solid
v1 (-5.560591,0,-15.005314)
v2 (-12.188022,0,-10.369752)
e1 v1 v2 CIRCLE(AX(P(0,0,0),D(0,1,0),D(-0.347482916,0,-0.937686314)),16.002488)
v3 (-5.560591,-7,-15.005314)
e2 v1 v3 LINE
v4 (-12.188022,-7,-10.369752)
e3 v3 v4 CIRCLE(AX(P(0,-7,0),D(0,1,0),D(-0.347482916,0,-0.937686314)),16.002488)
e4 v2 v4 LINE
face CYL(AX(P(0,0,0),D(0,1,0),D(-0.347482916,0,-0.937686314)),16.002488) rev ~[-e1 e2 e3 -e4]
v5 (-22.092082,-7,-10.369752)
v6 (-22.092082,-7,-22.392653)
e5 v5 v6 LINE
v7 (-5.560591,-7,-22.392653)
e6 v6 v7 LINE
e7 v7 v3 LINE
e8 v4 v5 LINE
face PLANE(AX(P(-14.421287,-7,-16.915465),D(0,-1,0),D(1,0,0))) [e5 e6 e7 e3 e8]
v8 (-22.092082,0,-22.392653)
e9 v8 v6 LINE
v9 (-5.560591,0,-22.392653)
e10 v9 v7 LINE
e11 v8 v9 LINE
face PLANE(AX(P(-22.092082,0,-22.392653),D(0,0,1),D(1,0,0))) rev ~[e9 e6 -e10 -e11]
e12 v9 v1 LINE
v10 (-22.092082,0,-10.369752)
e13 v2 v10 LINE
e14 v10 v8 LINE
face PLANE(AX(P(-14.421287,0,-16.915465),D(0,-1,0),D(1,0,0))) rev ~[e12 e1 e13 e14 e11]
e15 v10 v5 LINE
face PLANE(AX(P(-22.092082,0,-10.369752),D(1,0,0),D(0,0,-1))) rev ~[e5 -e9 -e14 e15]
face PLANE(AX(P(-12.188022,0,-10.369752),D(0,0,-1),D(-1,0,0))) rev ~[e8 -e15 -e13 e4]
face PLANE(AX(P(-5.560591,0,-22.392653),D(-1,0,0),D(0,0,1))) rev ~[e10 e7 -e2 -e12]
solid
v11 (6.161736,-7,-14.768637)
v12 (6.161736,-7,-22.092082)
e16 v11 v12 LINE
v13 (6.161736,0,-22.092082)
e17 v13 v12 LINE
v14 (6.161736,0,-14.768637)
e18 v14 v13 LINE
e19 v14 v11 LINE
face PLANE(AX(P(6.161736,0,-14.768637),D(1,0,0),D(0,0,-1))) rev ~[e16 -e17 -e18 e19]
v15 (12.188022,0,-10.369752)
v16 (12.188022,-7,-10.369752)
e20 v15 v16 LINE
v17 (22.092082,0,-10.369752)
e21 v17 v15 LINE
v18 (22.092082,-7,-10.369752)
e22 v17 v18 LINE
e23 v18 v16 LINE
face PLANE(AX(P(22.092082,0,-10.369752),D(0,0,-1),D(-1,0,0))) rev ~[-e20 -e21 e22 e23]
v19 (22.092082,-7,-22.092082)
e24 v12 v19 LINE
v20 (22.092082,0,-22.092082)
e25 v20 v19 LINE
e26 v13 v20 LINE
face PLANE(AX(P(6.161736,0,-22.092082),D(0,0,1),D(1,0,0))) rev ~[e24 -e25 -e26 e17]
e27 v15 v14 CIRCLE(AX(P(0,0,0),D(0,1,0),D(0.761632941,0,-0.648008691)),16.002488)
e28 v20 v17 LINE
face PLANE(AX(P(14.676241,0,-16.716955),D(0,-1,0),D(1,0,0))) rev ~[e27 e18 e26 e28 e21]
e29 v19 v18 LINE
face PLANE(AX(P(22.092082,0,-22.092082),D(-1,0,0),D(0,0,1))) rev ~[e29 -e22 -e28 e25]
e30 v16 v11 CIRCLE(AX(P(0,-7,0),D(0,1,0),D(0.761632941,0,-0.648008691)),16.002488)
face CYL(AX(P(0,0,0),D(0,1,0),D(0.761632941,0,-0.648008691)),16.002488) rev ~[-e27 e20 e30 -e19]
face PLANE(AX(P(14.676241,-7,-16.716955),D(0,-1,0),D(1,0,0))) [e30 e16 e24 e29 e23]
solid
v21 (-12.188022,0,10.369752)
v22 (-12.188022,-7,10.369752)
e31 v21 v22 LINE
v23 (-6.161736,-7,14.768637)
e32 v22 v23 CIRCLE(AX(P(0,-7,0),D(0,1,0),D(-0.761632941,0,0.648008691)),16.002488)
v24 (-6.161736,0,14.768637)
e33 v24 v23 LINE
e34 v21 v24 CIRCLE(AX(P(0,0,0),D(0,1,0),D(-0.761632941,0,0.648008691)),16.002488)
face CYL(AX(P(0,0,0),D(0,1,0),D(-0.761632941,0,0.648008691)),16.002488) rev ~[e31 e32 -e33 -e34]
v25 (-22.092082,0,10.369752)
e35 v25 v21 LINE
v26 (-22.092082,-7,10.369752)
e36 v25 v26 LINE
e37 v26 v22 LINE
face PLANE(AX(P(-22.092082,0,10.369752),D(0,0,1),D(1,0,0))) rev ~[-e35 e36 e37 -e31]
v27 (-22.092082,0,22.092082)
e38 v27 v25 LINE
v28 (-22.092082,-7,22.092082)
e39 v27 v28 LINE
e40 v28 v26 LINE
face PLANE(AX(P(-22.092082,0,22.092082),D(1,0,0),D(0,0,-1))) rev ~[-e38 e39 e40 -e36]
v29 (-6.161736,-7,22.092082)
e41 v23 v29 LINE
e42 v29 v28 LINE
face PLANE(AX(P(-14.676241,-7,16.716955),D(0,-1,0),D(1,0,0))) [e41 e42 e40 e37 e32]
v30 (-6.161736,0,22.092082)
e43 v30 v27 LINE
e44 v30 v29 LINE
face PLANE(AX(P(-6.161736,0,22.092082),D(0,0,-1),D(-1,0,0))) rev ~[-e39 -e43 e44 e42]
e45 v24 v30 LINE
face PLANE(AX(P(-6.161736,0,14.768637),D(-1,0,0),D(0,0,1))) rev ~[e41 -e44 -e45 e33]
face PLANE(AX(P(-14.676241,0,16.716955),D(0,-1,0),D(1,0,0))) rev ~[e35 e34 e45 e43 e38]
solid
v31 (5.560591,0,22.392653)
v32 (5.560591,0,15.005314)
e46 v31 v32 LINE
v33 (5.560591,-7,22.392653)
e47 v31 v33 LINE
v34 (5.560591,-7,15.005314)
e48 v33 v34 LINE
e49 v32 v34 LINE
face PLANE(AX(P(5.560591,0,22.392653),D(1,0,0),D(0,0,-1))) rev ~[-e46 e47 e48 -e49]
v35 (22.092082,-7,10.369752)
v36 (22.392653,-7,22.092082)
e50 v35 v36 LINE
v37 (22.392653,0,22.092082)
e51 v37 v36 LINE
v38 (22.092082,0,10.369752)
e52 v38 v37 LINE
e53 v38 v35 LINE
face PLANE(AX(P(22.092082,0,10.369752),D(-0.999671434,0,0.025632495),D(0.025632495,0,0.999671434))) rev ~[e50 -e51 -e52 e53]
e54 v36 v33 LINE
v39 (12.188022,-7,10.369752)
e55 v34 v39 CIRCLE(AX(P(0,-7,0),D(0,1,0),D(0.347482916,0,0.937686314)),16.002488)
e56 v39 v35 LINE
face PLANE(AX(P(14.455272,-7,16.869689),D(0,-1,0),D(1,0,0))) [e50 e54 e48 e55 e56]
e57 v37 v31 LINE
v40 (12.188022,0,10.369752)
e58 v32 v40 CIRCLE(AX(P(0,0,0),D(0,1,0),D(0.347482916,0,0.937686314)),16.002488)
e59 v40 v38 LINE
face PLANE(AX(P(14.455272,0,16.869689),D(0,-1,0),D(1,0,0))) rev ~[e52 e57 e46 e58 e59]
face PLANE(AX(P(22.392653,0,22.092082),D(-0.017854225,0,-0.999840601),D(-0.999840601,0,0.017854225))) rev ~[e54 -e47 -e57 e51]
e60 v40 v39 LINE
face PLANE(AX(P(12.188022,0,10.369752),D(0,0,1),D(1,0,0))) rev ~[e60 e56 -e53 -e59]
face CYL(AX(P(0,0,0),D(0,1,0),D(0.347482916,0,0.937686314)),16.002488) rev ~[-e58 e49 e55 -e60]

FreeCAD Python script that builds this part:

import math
import FreeCAD as App
import Part
import Sketcher
from FreeCAD import Vector
Q = App.Units.Quantity

doc = App.newDocument("Part")
params = doc.addObject("Spreadsheet::Sheet", "Params")
for row, (alias, value) in enumerate([
    ("pad1_length", "7 mm"),
    ("pad2_length", "7 mm"),
    ("pad3_length", "7 mm"),
    ("pad4_length", "7 mm"),
    ("pad5_length", "25 mm"),
    ("pad6_length", "25 mm"),
    ("pad7_length", "25 mm"),
    ("pad8_length", "25 mm"),
    ("pad9_length", "8.4 mm"),
], start=1):
    params.set(f"A{row}", alias)
    params.set(f"B{row}", "=" + value)
    params.setAlias(f"B{row}", alias)

body = doc.addObject("PartDesign::Body", "Body")

# Sketch on XZ plane
sketch1 = doc.addObject("Sketcher::SketchObject", "Sketch")
body.addObject(sketch1)
sketch1.AttachmentSupport = (doc.XZ_Plane, [""])
sketch1.MapMode = "FlatFace"
sketch1.addGeometry([
    Part.ArcOfCircle(Part.Circle(Vector(0, 0, 0), Vector(0, 0, 1), 16), math.radians(113), math.radians(140)),  # 0
    Part.LineSegment(Vector(-6, 15, 0), Vector(-6, 22, 0)),  # 1
    Part.LineSegment(Vector(-6, 22, 0), Vector(-22, 22, 0)),  # 2
    Part.LineSegment(Vector(-22, 22, 0), Vector(-22, 10, 0)),  # 3
    Part.LineSegment(Vector(-22, 10, 0), Vector(-12, 10, 0)),  # 4
], False)
sketch1.addConstraint([
    Sketcher.Constraint("Coincident", 0, 1, 1, 1),
    Sketcher.Constraint("Coincident", 1, 2, 2, 1),
    Sketcher.Constraint("Coincident", 2, 2, 3, 1),
    Sketcher.Constraint("Coincident", 3, 2, 4, 1),
    Sketcher.Constraint("Coincident", 4, 2, 0, 2),
    Sketcher.Constraint("Vertical", 1),
    Sketcher.Constraint("Horizontal", 2),
    Sketcher.Constraint("Vertical", 3),
    Sketcher.Constraint("Horizontal", 4),
    Sketcher.Constraint("Coincident", 0, 3, -1, 1),
    Sketcher.Constraint("Radius", 0, Q("16.002488 mm")),
    Sketcher.Constraint("DistanceX", 4, 1, 4, 2, Q("9.904059 mm")),
    Sketcher.Constraint("DistanceY", 3, 2, 3, 1, Q("11.72233 mm")),
    Sketcher.Constraint("DistanceX", 2, 2, 2, 1, Q("15.930345 mm")),
    Sketcher.Constraint("DistanceY", 1, 1, 1, 2, Q("7.323444 mm")),
])
pad1 = doc.addObject("PartDesign::Pad", "Pad")
body.addObject(pad1)
pad1.Profile = sketch1
pad1.setExpression("Length", "Params.pad1_length")
body2 = doc.addObject("PartDesign::Body", "Body001")

# Sketch on XZ plane
sketch2 = doc.addObject("Sketcher::SketchObject", "Sketch001")
body2.addObject(sketch2)
sketch2.AttachmentSupport = (doc.getObject("XZ_Plane001"), [""])
sketch2.MapMode = "FlatFace"
sketch2.addGeometry([
    Part.ArcOfCircle(Part.Circle(Vector(0, 0, 0), Vector(0, 0, 1), 16), math.radians(40), math.radians(70)),  # 0
    Part.LineSegment(Vector(12, 10, 0), Vector(22, 10, 0)),  # 1
    Part.LineSegment(Vector(22, 10, 0), Vector(22, 22, 0)),  # 2
    Part.LineSegment(Vector(22, 22, 0), Vector(6, 22, 0)),  # 3
    Part.LineSegment(Vector(6, 22, 0), Vector(6, 15, 0)),  # 4
], False)
sketch2.addConstraint([
    Sketcher.Constraint("Coincident", 0, 1, 1, 1),
    Sketcher.Constraint("Coincident", 1, 2, 2, 1),
    Sketcher.Constraint("Coincident", 2, 2, 3, 1),
    Sketcher.Constraint("Coincident", 3, 2, 4, 1),
    Sketcher.Constraint("Coincident", 4, 2, 0, 2),
    Sketcher.Constraint("Horizontal", 1),
    Sketcher.Constraint("Vertical", 4),
    Sketcher.Constraint("Coincident", 0, 3, -1, 1),
    Sketcher.Constraint("Radius", 0, Q("16.002488 mm")),
    Sketcher.Constraint("DistanceX", 1, 1, 1, 2, Q("9.904059 mm")),
    Sketcher.Constraint("DistanceY", 4, 2, 4, 1, Q("7.387338 mm")),
    Sketcher.Constraint("DistanceY", 0, 1, 3, 2, Q("12.022901 mm")),
    Sketcher.Constraint("DistanceY", -1, 1, 0, 1, Q("10.369752 mm")),
    Sketcher.Constraint("DistanceY", -1, 1, 2, 2, Q("22.092082 mm")),
    Sketcher.Constraint("DistanceX", 1, 2, 2, 2, Q("0.300571 mm")),
])
pad2 = doc.addObject("PartDesign::Pad", "Pad001")
body2.addObject(pad2)
pad2.Profile = sketch2
pad2.setExpression("Length", "Params.pad2_length")
body3 = doc.addObject("PartDesign::Body", "Body002")

# Sketch on XZ plane
sketch3 = doc.addObject("Sketcher::SketchObject", "Sketch002")
body3.addObject(sketch3)
sketch3.AttachmentSupport = (doc.getObject("XZ_Plane002"), [""])
sketch3.MapMode = "FlatFace"
sketch3.addGeometry([
    Part.LineSegment(Vector(-6, -22, 0), Vector(-6, -15, 0)),  # 0
    Part.ArcOfCircle(Part.Circle(Vector(0, 0, 0), Vector(0, 0, 1), 16), math.radians(-140), math.radians(-110)),  # 1
    Part.LineSegment(Vector(-12, -10, 0), Vector(-22, -10, 0)),  # 2
    Part.LineSegment(Vector(-22, -10, 0), Vector(-22, -22, 0)),  # 3
    Part.LineSegment(Vector(-22, -22, 0), Vector(-6, -22, 0)),  # 4
], False)
sketch3.addConstraint([
    Sketcher.Constraint("Coincident", 0, 2, 1, 2),
    Sketcher.Constraint("Coincident", 1, 1, 2, 1),
    Sketcher.Constraint("Coincident", 2, 2, 3, 1),
    Sketcher.Constraint("Coincident", 3, 2, 4, 1),
    Sketcher.Constraint("Coincident", 4, 2, 0, 1),
    Sketcher.Constraint("Vertical", 0),
    Sketcher.Constraint("Horizontal", 2),
    Sketcher.Constraint("Vertical", 3),
    Sketcher.Constraint("Horizontal", 4),
    Sketcher.Constraint("Coincident", 1, 3, -1, 1),
    Sketcher.Constraint("Radius", 1, Q("16.002488 mm")),
    Sketcher.Constraint("DistanceY", 3, 2, 3, 1, Q("12.022901 mm")),
    Sketcher.Constraint("DistanceX", 2, 2, 2, 1, Q("9.904059 mm")),
    Sketcher.Constraint("DistanceX", 4, 1, 4, 2, Q("16.53149 mm")),
    Sketcher.Constraint("DistanceY", 0, 1, 0, 2, Q("7.387338 mm")),
])
pad3 = doc.addObject("PartDesign::Pad", "Pad002")
body3.addObject(pad3)
pad3.Profile = sketch3
pad3.setExpression("Length", "Params.pad3_length")
body4 = doc.addObject("PartDesign::Body", "Body003")

# Sketch on XZ plane
sketch4 = doc.addObject("Sketcher::SketchObject", "Sketch003")
body4.addObject(sketch4)
sketch4.AttachmentSupport = (doc.getObject("XZ_Plane003"), [""])
sketch4.MapMode = "FlatFace"
sketch4.addGeometry([
    Part.LineSegment(Vector(22, -10, 0), Vector(12, -10, 0)),  # 0
    Part.ArcOfCircle(Part.Circle(Vector(0, 0, 0), Vector(0, 0, 1), 16), math.radians(-67), math.radians(-40)),  # 1
    Part.LineSegment(Vector(6, -15, 0), Vector(6, -22, 0)),  # 2
    Part.LineSegment(Vector(6, -22, 0), Vector(22, -22, 0)),  # 3
    Part.LineSegment(Vector(22, -22, 0), Vector(22, -10, 0)),  # 4
], False)
sketch4.addConstraint([
    Sketcher.Constraint("Coincident", 0, 2, 1, 2),
    Sketcher.Constraint("Coincident", 1, 1, 2, 1),
    Sketcher.Constraint("Coincident", 2, 2, 3, 1),
    Sketcher.Constraint("Coincident", 3, 2, 4, 1),
    Sketcher.Constraint("Coincident", 4, 2, 0, 1),
    Sketcher.Constraint("Horizontal", 0),
    Sketcher.Constraint("Vertical", 2),
    Sketcher.Constraint("Horizontal", 3),
    Sketcher.Constraint("Vertical", 4),
    Sketcher.Constraint("Coincident", 1, 3, -1, 1),
    Sketcher.Constraint("Radius", 1, Q("16.002488 mm")),
    Sketcher.Constraint("DistanceX", 0, 2, 0, 1, Q("9.904059 mm")),
    Sketcher.Constraint("DistanceY", 4, 1, 4, 2, Q("11.72233 mm")),
    Sketcher.Constraint("DistanceX", 3, 1, 3, 2, Q("15.930345 mm")),
    Sketcher.Constraint("DistanceY", 2, 2, 2, 1, Q("7.323444 mm")),
])
pad4 = doc.addObject("PartDesign::Pad", "Pad003")
body4.addObject(pad4)
pad4.Profile = sketch4
pad4.setExpression("Length", "Params.pad4_length")
body5 = doc.addObject("PartDesign::Body", "Body004")

# Sketch on XZ plane
sketch5 = doc.addObject("Sketcher::SketchObject", "Sketch004")
body5.addObject(sketch5)
sketch5.AttachmentSupport = (doc.getObject("XZ_Plane004"), [""])
sketch5.MapMode = "FlatFace"
sketch5.addGeometry([
    Part.LineSegment(Vector(-21, 10, 0), Vector(-21, -10, 0)),
    Part.LineSegment(Vector(-21, -10, 0), Vector(21, -10, 0)),
    Part.LineSegment(Vector(21, -10, 0), Vector(21, 10, 0)),
    Part.LineSegment(Vector(21, 10, 0), Vector(-21, 10, 0)),
], False)
sketch5.addConstraint([
    Sketcher.Constraint("Coincident", 0, 2, 1, 1),
    Sketcher.Constraint("Coincident", 1, 2, 2, 1),
    Sketcher.Constraint("Coincident", 2, 2, 3, 1),
    Sketcher.Constraint("Coincident", 3, 2, 0, 1),
    Sketcher.Constraint("Vertical", 0),
    Sketcher.Constraint("Horizontal", 1),
    Sketcher.Constraint("Vertical", 2),
    Sketcher.Constraint("Horizontal", 3),
    Sketcher.Constraint("Symmetric", 0, 2, 2, 2, -1, 1),
    Sketcher.Constraint("DistanceX", 1, 1, 1, 2, Q("42.98187 mm")),
    Sketcher.Constraint("DistanceY", 0, 2, 0, 1, Q("20.739503 mm")),
])
pad5 = doc.addObject("PartDesign::Pad", "Pad004")
body5.addObject(pad5)
pad5.Profile = sketch5
pad5.setExpression("Length", "Params.pad5_length")
body6 = doc.addObject("PartDesign::Body", "Body005")

# Sketch on XZ plane
sketch6 = doc.addObject("Sketcher::SketchObject", "Sketch005")
body6.addObject(sketch6)
sketch6.AttachmentSupport = (doc.getObject("XZ_Plane005"), [""])
sketch6.MapMode = "FlatFace"
sketch6.addGeometry([
    Part.LineSegment(Vector(-6, 22, 0), Vector(-6, 0, 0)),
    Part.LineSegment(Vector(-6, 0, 0), Vector(6, 0, 0)),
    Part.LineSegment(Vector(6, 0, 0), Vector(6, 22, 0)),
    Part.LineSegment(Vector(6, 22, 0), Vector(-6, 22, 0)),
], False)
sketch6.addConstraint([
    Sketcher.Constraint("Coincident", 0, 2, 1, 1),
    Sketcher.Constraint("Coincident", 1, 2, 2, 1),
    Sketcher.Constraint("Coincident", 2, 2, 3, 1),
    Sketcher.Constraint("Coincident", 3, 2, 0, 1),
    Sketcher.Constraint("Vertical", 0),
    Sketcher.Constraint("Horizontal", 1),
    Sketcher.Constraint("Vertical", 2),
    Sketcher.Constraint("Horizontal", 3),
    Sketcher.Constraint("DistanceX", 1, 1, 1, 2, Q("12.323473 mm")),
    Sketcher.Constraint("DistanceY", 0, 2, 0, 1, Q("22.242367 mm")),
    Sketcher.Constraint("DistanceX", 0, 2, -1, 1, Q("6.161736 mm")),
    Sketcher.Constraint("DistanceY", -1, 1, 0, 2, Q("0.150286 mm")),
])
pad6 = doc.addObject("PartDesign::Pad", "Pad005")
body6.addObject(pad6)
pad6.Profile = sketch6
pad6.setExpression("Length", "Params.pad6_length")
body7 = doc.addObject("PartDesign::Body", "Body006")

# Sketch on XZ plane
sketch7 = doc.addObject("Sketcher::SketchObject", "Sketch006")
body7.addObject(sketch7)
sketch7.AttachmentSupport = (doc.getObject("XZ_Plane006"), [""])
sketch7.MapMode = "FlatFace"
sketch7.addGeometry(Part.Circle(Vector(0, 0, 0), Vector(0, 0, 1), 16), False)
sketch7.addConstraint([
    Sketcher.Constraint("Coincident", 0, 3, -1, 1),
    Sketcher.Constraint("Diameter", 0, Q("31.320177 mm")),
])
pad7 = doc.addObject("PartDesign::Pad", "Pad006")
body7.addObject(pad7)
pad7.Profile = sketch7
pad7.setExpression("Length", "Params.pad7_length")
body8 = doc.addObject("PartDesign::Body", "Body007")

# Sketch on XZ plane
sketch8 = doc.addObject("Sketcher::SketchObject", "Sketch007")
body8.addObject(sketch8)
sketch8.AttachmentSupport = (doc.getObject("XZ_Plane007"), [""])
sketch8.MapMode = "FlatFace"
sketch8.addGeometry([
    Part.LineSegment(Vector(-6, 0, 0), Vector(-6, -22, 0)),
    Part.LineSegment(Vector(-6, -22, 0), Vector(6, -22, 0)),
    Part.LineSegment(Vector(6, -22, 0), Vector(6, 0, 0)),
    Part.LineSegment(Vector(6, 0, 0), Vector(-6, 0, 0)),
], False)
sketch8.addConstraint([
    Sketcher.Constraint("Coincident", 0, 2, 1, 1),
    Sketcher.Constraint("Coincident", 1, 2, 2, 1),
    Sketcher.Constraint("Coincident", 2, 2, 3, 1),
    Sketcher.Constraint("Coincident", 3, 2, 0, 1),
    Sketcher.Constraint("Vertical", 0),
    Sketcher.Constraint("Horizontal", 1),
    Sketcher.Constraint("Vertical", 2),
    Sketcher.Constraint("Horizontal", 3),
    Sketcher.Constraint("DistanceX", 1, 1, 1, 2, Q("11.121183 mm")),
    Sketcher.Constraint("DistanceY", 0, 2, 0, 1, Q("21.641225 mm")),
    Sketcher.Constraint("DistanceX", 0, 2, -1, 1, Q("5.560591 mm")),
    Sketcher.Constraint("DistanceY", 0, 2, -1, 1, Q("22.092082 mm")),
])
pad8 = doc.addObject("PartDesign::Pad", "Pad007")
body8.addObject(pad8)
pad8.Profile = sketch8
pad8.setExpression("Length", "Params.pad8_length")
body9 = doc.addObject("PartDesign::Body", "Body008")

# Sketch on XZ plane
sketch9 = doc.addObject("Sketcher::SketchObject", "Sketch008")
body9.addObject(sketch9)
sketch9.AttachmentSupport = (doc.getObject("XZ_Plane008"), [""])
sketch9.MapMode = "FlatFace"
sketch9.addGeometry([
    Part.LineSegment(Vector(-22, 10, 0), Vector(-22, -10, 0)),
    Part.LineSegment(Vector(-22, -10, 0), Vector(22, -10, 0)),
    Part.LineSegment(Vector(22, -10, 0), Vector(22, 10, 0)),
    Part.LineSegment(Vector(22, 10, 0), Vector(-22, 10, 0)),
], False)
sketch9.addConstraint([
    Sketcher.Constraint("Coincident", 0, 2, 1, 1),
    Sketcher.Constraint("Coincident", 1, 2, 2, 1),
    Sketcher.Constraint("Coincident", 2, 2, 3, 1),
    Sketcher.Constraint("Coincident", 3, 2, 0, 1),
    Sketcher.Constraint("Vertical", 0),
    Sketcher.Constraint("Horizontal", 1),
    Sketcher.Constraint("Vertical", 2),
    Sketcher.Constraint("Horizontal", 3),
    Sketcher.Constraint("Symmetric", 0, 2, 2, 2, -1, 1),
    Sketcher.Constraint("DistanceY", 0, 2, 0, 1, Q("20.138361 mm")),
    Sketcher.Constraint("DistanceX", 1, 1, 1, 2, Q("43.583017 mm")),
])
pad9 = doc.addObject("PartDesign::Pad", "Pad008")
body9.addObject(pad9)
pad9.Profile = sketch9
pad9.setExpression("Length", "Params.pad9_length")
body5.Visibility = False
body6.Visibility = False
body7.Visibility = False
body8.Visibility = False
body9.Visibility = False

doc.recompute()
